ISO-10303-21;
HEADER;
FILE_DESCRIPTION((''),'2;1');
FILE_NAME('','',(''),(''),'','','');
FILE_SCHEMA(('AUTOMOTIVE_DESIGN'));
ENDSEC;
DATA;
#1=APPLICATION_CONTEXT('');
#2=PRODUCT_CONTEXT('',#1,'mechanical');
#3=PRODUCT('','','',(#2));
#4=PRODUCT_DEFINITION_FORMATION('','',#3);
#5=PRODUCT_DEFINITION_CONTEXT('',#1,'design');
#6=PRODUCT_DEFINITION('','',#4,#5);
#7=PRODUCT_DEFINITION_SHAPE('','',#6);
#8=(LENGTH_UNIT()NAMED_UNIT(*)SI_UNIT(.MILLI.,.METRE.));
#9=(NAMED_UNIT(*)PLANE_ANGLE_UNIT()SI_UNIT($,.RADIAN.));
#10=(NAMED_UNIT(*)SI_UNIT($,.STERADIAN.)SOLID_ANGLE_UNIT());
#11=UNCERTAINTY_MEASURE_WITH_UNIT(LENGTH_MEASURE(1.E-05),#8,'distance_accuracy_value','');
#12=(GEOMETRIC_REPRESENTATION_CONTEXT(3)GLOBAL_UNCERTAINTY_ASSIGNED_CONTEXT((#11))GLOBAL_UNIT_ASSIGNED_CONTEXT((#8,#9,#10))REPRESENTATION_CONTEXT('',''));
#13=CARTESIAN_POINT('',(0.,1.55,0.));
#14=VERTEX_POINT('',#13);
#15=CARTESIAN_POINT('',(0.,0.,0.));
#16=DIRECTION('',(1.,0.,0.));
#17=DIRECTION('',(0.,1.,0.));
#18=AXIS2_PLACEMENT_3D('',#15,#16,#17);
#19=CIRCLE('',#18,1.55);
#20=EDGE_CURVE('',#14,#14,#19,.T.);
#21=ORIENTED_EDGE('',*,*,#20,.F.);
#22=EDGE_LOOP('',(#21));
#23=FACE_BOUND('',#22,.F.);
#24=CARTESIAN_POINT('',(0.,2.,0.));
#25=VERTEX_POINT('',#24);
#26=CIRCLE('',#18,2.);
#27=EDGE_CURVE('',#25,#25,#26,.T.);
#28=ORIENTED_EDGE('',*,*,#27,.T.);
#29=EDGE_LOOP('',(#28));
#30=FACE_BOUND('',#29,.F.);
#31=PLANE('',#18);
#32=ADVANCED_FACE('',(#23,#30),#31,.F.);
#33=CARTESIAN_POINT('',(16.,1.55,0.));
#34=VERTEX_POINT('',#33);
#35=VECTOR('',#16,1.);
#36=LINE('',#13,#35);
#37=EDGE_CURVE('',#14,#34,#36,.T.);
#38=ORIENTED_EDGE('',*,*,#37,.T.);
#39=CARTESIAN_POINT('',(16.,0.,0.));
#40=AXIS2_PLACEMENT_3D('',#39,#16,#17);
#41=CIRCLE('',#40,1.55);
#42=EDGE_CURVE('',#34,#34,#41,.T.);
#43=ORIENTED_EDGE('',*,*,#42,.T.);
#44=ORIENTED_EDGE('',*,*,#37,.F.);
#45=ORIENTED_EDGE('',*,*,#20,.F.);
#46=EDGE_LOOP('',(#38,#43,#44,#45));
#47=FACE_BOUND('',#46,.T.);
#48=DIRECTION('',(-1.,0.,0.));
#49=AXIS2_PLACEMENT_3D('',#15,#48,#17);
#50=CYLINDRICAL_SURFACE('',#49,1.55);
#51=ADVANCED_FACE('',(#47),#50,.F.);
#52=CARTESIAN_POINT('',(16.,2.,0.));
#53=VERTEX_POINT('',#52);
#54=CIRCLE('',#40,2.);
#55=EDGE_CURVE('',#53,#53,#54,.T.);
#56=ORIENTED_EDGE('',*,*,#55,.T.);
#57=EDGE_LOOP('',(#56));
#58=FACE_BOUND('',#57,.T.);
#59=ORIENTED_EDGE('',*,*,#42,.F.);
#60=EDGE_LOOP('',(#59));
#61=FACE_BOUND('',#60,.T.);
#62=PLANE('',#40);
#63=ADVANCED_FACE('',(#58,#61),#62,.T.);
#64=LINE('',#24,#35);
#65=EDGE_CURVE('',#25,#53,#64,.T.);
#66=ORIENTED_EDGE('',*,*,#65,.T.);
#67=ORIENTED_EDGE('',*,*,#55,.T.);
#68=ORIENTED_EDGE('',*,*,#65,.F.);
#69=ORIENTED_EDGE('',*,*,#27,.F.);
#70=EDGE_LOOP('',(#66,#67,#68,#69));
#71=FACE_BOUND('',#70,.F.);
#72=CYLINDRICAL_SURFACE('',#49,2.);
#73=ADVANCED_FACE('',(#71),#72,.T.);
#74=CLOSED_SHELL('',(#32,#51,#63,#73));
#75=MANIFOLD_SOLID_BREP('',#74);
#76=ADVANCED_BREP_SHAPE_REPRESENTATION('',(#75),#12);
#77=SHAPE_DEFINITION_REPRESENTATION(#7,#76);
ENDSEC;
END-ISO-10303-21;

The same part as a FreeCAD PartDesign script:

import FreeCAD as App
import Part
import Sketcher
from FreeCAD import Vector

doc = App.newDocument("Part")
params = doc.addObject("Spreadsheet::Sheet", "Params")
for row, (alias, value) in enumerate([
    ("sketch1_diameter", "4 mm"),
    ("sketch1_diameter2", "3.1 mm"),
    ("pad1_length", "16 mm"),
], start=1):
    params.set(f"A{row}", alias)
    params.set(f"B{row}", "=" + value)
    params.setAlias(f"B{row}", alias)

body = doc.addObject("PartDesign::Body", "Body")

# Sketch on YZ plane
sketch1 = body.newObject("Sketcher::SketchObject", "Sketch")
sketch1.AttachmentSupport = (doc.getObject("YZ_Plane"), [""])
sketch1.MapMode = "FlatFace"
sketch1.addGeometry([
    Part.Circle(Vector(0, 0, 0), Vector(0, 0, 1), 2),
    Part.Circle(Vector(0, 0, 0), Vector(0, 0, 1), 1.6),
], False)
sketch1.addConstraint([
    Sketcher.Constraint("Coincident", 0, 3, -1, 1),
    Sketcher.Constraint("Coincident", 1, 3, -1, 1),
    Sketcher.Constraint("Diameter", 0, 4.0),
    Sketcher.Constraint("Diameter", 1, 3.1),
])
sketch1.setExpression("Constraints[2]", "Params.sketch1_diameter")
sketch1.setExpression("Constraints[3]", "Params.sketch1_diameter2")
pad1 = body.newObject("PartDesign::Pad", "Pad")
pad1.Profile = sketch1
pad1.setExpression("Length", "Params.pad1_length")

doc.recompute()
